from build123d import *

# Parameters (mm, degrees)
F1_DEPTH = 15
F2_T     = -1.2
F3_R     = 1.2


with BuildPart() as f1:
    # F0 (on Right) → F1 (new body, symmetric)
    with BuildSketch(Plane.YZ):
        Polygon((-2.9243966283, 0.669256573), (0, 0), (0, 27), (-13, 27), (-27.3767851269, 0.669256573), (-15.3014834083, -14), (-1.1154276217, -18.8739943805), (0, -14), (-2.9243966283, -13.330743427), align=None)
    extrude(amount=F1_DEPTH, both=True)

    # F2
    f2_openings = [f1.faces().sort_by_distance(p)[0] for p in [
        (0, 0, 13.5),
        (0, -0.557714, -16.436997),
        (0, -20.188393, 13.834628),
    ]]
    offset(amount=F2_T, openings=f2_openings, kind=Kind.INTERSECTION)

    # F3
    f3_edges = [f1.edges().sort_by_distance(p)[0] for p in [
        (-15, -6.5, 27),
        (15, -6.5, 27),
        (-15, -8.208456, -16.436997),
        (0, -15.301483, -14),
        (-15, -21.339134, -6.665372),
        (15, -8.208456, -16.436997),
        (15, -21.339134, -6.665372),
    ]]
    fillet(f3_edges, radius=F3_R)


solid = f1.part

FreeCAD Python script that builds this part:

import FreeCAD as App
import Part
import Sketcher

V = App.Vector
Q = App.Units.Quantity


def edges_at(feature, points):
    """Names of the edges that pass closest to the given points."""
    edges = feature.Shape.Edges
    near = lambda p: min(range(len(edges)), key=lambda i: edges[i].distToShape(Part.Vertex(*p))[0])
    return sorted({f"Edge{near(p) + 1}" for p in points})


def faces_at(feature, points):
    """Names of the faces that lie closest to the given points."""
    faces = feature.Shape.Faces
    near = lambda p: min(range(len(faces)), key=lambda i: faces[i].distToShape(Part.Vertex(*p))[0])
    return sorted({f"Face{near(p) + 1}" for p in points})

doc = App.newDocument("Part")
body = doc.addObject("PartDesign::Body", "Body")

sketch1 = body.newObject("Sketcher::SketchObject", "Sketch")
sketch1.AttachmentSupport = (doc.getObject("YZ_Plane"), [""])
sketch1.MapMode = "FlatFace"
sketch1.addGeometry(Part.LineSegment(V(-2.924397, 0.669257, 0), V(0, 0, 0)), False)
sketch1.addGeometry(Part.LineSegment(V(0, 0, 0), V(0, 27, 0)), False)
sketch1.addGeometry(Part.LineSegment(V(0, 27, 0), V(-13, 27, 0)), False)
sketch1.addGeometry(Part.LineSegment(V(-13, 27, 0), V(-27.376785, 0.669257, 0)), False)
sketch1.addGeometry(Part.LineSegment(V(-27.376785, 0.669257, 0), V(-15.301483, -14, 0)), False)
sketch1.addGeometry(Part.LineSegment(V(-15.301483, -14, 0), V(-1.115428, -18.873994, 0)), False)
sketch1.addGeometry(Part.LineSegment(V(-1.115428, -18.873994, 0), V(0, -14, 0)), False)
sketch1.addGeometry(Part.LineSegment(V(0, -14, 0), V(-2.924397, -13.330743, 0)), False)
sketch1.addGeometry(Part.LineSegment(V(-2.924397, -13.330743, 0), V(-2.924397, 0.669257, 0)), False)
sketch1.addConstraint(Sketcher.Constraint("Coincident", 0, 2, 1, 1))
sketch1.addConstraint(Sketcher.Constraint("Coincident", 1, 2, 2, 1))
sketch1.addConstraint(Sketcher.Constraint("Coincident", 2, 2, 3, 1))
sketch1.addConstraint(Sketcher.Constraint("Coincident", 3, 2, 4, 1))
sketch1.addConstraint(Sketcher.Constraint("Coincident", 4, 2, 5, 1))
sketch1.addConstraint(Sketcher.Constraint("Coincident", 5, 2, 6, 1))
sketch1.addConstraint(Sketcher.Constraint("Coincident", 6, 2, 7, 1))
sketch1.addConstraint(Sketcher.Constraint("Coincident", 7, 2, 8, 1))
sketch1.addConstraint(Sketcher.Constraint("Coincident", 8, 2, 0, 1))
sketch1.addConstraint(Sketcher.Constraint("Vertical", 1))
sketch1.addConstraint(Sketcher.Constraint("Horizontal", 2))
sketch1.addConstraint(Sketcher.Constraint("Vertical", 8))
sketch1.addConstraint(Sketcher.Constraint("Coincident", 0, 2, -1, 1))
sketch1.addConstraint(Sketcher.Constraint("PointOnObject", 6, 2, -2))
sketch1.addConstraint(Sketcher.Constraint("Perpendicular", 0, 6))
sketch1.addConstraint(Sketcher.Constraint("Perpendicular", 6, 7))
sketch1.addConstraint(Sketcher.Constraint("Horizontal", 4, 2, 6, 2))
sketch1.addConstraint(Sketcher.Constraint("Horizontal", 3, 2, 8, 2))
sketch1.addConstraint(Sketcher.Constraint("DistanceX", 2, 2, 2, 1, Q("13 mm")))
sketch1.addConstraint(Sketcher.Constraint("DistanceY", 1, 1, 1, 2, Q("27 mm")))
sketch1.addConstraint(Sketcher.Constraint("DistanceY", 8, 1, 8, 2, Q("14 mm")))
sketch1.addConstraint(Sketcher.Constraint("Distance", 0, Q("3 mm")))
sketch1.addConstraint(Sketcher.Constraint("Distance", 3, Q("30 mm")))
sketch1.addConstraint(Sketcher.Constraint("Distance", 4, Q("19 mm")))
sketch1.addConstraint(Sketcher.Constraint("Distance", 5, Q("15 mm")))
sketch1.addConstraint(Sketcher.Constraint("Distance", 6, Q("5 mm")))
pad1 = body.newObject("PartDesign::Pad", "Pad")
pad1.Profile = sketch1
pad1.Length = 30
pad1.Midplane = True
doc.recompute()

thickness = body.newObject("PartDesign::Thickness", "Thickness")
thickness.Base = (pad1, faces_at(pad1, [(0, 0, 13.5), (0, -0.558, -16.437), (0, -20.188, 13.835)]))
thickness.Value = 1.2
thickness.Reversed = True
thickness.Join = "Intersection"
doc.recompute()

fillet = body.newObject("PartDesign::Fillet", "Fillet")
fillet.Base = (thickness, edges_at(thickness, [
    (-15, -6.5, 27),
    (15, -6.5, 27),
    (-15, -8.208, -16.437),
    (0, -15.301, -14),
    (-15, -21.339, -6.665),
    (15, -8.208, -16.437),
    (15, -21.339, -6.665),
]))
fillet.Radius = 1.2

doc.recompute()
